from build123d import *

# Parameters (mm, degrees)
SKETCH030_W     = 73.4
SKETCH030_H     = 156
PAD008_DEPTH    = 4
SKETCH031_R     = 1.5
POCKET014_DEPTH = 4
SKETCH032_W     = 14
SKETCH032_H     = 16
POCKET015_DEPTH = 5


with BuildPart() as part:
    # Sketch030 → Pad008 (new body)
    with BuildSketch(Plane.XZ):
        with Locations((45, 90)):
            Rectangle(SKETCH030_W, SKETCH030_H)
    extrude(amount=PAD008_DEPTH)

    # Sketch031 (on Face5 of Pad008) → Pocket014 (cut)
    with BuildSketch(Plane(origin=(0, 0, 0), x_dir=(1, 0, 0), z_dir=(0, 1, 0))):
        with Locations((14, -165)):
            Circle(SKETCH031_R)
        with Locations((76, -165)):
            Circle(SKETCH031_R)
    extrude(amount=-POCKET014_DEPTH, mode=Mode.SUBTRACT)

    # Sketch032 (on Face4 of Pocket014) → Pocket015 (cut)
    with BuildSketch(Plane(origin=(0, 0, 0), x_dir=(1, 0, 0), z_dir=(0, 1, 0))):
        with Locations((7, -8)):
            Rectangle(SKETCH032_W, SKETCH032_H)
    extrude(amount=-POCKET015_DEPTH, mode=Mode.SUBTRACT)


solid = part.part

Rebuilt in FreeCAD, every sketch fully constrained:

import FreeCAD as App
import Part
import Sketcher
from FreeCAD import Vector
Q = App.Units.Quantity

doc = App.newDocument("Part")
body = doc.addObject("PartDesign::Body", "Body")

sketch1 = body.newObject("Sketcher::SketchObject", "Sketch")
sketch1.AttachmentSupport = (doc.getObject("XZ_Plane"), [""])
sketch1.MapMode = "FlatFace"
sketch1.addGeometry([
    Part.LineSegment(Vector(8, 168, 0), Vector(8, 12, 0)),
    Part.LineSegment(Vector(8, 12, 0), Vector(82, 12, 0)),
    Part.LineSegment(Vector(82, 12, 0), Vector(82, 168, 0)),
    Part.LineSegment(Vector(82, 168, 0), Vector(8, 168, 0)),
], False)
sketch1.addConstraint([
    Sketcher.Constraint("Coincident", 0, 2, 1, 1),
    Sketcher.Constraint("Coincident", 1, 2, 2, 1),
    Sketcher.Constraint("Coincident", 2, 2, 3, 1),
    Sketcher.Constraint("Coincident", 3, 2, 0, 1),
    Sketcher.Constraint("Vertical", 0),
    Sketcher.Constraint("Horizontal", 1),
    Sketcher.Constraint("Vertical", 2),
    Sketcher.Constraint("Horizontal", 3),
    Sketcher.Constraint("DistanceY", 0, 2, 0, 1, Q("156 mm")),
    Sketcher.Constraint("DistanceX", 1, 1, 1, 2, Q("73.4 mm")),
    Sketcher.Constraint("DistanceY", -1, 1, 0, 2, Q("12 mm")),
    Sketcher.Constraint("DistanceX", -1, 1, 0, 2, Q("8.3 mm")),
])
pad1 = body.newObject("PartDesign::Pad", "Pad")
pad1.Profile = sketch1
pad1.Length = 4

sketch2 = body.newObject("Sketcher::SketchObject", "Sketch001")
sketch2.AttachmentSupport = (doc.getObject("XZ_Plane"), [""])
sketch2.MapMode = "FlatFace"
sketch2.addGeometry([
    Part.Circle(Vector(14, 165, 0), Vector(0, 0, 1), 1.5),
    Part.Circle(Vector(76, 165, 0), Vector(0, 0, 1), 1.5),
], False)
sketch2.addConstraint([
    Sketcher.Constraint("Equal", 0, 1),
    Sketcher.Constraint("Horizontal", 0, 3, 1, 3),
    Sketcher.Constraint("Diameter", 0, Q("3 mm")),
    Sketcher.Constraint("DistanceX", -1, 1, 0, 3, Q("14 mm")),
    Sketcher.Constraint("DistanceY", -1, 1, 0, 3, Q("165 mm")),
    Sketcher.Constraint("DistanceX", -1, 1, 1, 3, Q("76 mm")),
])
pocket1 = body.newObject("PartDesign::Pocket", "Pocket")
pocket1.Profile = sketch2
pocket1.Length = 4
pocket1.Reversed = True

sketch3 = body.newObject("Sketcher::SketchObject", "Sketch002")
sketch3.AttachmentSupport = (doc.getObject("XZ_Plane"), [""])
sketch3.MapMode = "FlatFace"
sketch3.addGeometry([
    Part.LineSegment(Vector(0, 0, 0), Vector(0, 16, 0)),
    Part.LineSegment(Vector(0, 16, 0), Vector(14, 16, 0)),
    Part.LineSegment(Vector(14, 16, 0), Vector(14, 0, 0)),
    Part.LineSegment(Vector(14, 0, 0), Vector(0, 0, 0)),
], False)
sketch3.addConstraint([
    Sketcher.Constraint("Coincident", 0, 2, 1, 1),
    Sketcher.Constraint("Coincident", 1, 2, 2, 1),
    Sketcher.Constraint("Coincident", 2, 2, 3, 1),
    Sketcher.Constraint("Coincident", 3, 2, 0, 1),
    Sketcher.Constraint("Vertical", 0),
    Sketcher.Constraint("Horizontal", 1),
    Sketcher.Constraint("Vertical", 2),
    Sketcher.Constraint("Horizontal", 3),
    Sketcher.Constraint("Coincident", 3, 2, -1, 1),
    Sketcher.Constraint("DistanceX", 1, 1, 1, 2, Q("14 mm")),
    Sketcher.Constraint("DistanceY", 0, 1, 0, 2, Q("16 mm")),
])
pocket2 = body.newObject("PartDesign::Pocket", "Pocket001")
pocket2.Profile = sketch3
pocket2.Length = 5
pocket2.Reversed = True

doc.recompute()
